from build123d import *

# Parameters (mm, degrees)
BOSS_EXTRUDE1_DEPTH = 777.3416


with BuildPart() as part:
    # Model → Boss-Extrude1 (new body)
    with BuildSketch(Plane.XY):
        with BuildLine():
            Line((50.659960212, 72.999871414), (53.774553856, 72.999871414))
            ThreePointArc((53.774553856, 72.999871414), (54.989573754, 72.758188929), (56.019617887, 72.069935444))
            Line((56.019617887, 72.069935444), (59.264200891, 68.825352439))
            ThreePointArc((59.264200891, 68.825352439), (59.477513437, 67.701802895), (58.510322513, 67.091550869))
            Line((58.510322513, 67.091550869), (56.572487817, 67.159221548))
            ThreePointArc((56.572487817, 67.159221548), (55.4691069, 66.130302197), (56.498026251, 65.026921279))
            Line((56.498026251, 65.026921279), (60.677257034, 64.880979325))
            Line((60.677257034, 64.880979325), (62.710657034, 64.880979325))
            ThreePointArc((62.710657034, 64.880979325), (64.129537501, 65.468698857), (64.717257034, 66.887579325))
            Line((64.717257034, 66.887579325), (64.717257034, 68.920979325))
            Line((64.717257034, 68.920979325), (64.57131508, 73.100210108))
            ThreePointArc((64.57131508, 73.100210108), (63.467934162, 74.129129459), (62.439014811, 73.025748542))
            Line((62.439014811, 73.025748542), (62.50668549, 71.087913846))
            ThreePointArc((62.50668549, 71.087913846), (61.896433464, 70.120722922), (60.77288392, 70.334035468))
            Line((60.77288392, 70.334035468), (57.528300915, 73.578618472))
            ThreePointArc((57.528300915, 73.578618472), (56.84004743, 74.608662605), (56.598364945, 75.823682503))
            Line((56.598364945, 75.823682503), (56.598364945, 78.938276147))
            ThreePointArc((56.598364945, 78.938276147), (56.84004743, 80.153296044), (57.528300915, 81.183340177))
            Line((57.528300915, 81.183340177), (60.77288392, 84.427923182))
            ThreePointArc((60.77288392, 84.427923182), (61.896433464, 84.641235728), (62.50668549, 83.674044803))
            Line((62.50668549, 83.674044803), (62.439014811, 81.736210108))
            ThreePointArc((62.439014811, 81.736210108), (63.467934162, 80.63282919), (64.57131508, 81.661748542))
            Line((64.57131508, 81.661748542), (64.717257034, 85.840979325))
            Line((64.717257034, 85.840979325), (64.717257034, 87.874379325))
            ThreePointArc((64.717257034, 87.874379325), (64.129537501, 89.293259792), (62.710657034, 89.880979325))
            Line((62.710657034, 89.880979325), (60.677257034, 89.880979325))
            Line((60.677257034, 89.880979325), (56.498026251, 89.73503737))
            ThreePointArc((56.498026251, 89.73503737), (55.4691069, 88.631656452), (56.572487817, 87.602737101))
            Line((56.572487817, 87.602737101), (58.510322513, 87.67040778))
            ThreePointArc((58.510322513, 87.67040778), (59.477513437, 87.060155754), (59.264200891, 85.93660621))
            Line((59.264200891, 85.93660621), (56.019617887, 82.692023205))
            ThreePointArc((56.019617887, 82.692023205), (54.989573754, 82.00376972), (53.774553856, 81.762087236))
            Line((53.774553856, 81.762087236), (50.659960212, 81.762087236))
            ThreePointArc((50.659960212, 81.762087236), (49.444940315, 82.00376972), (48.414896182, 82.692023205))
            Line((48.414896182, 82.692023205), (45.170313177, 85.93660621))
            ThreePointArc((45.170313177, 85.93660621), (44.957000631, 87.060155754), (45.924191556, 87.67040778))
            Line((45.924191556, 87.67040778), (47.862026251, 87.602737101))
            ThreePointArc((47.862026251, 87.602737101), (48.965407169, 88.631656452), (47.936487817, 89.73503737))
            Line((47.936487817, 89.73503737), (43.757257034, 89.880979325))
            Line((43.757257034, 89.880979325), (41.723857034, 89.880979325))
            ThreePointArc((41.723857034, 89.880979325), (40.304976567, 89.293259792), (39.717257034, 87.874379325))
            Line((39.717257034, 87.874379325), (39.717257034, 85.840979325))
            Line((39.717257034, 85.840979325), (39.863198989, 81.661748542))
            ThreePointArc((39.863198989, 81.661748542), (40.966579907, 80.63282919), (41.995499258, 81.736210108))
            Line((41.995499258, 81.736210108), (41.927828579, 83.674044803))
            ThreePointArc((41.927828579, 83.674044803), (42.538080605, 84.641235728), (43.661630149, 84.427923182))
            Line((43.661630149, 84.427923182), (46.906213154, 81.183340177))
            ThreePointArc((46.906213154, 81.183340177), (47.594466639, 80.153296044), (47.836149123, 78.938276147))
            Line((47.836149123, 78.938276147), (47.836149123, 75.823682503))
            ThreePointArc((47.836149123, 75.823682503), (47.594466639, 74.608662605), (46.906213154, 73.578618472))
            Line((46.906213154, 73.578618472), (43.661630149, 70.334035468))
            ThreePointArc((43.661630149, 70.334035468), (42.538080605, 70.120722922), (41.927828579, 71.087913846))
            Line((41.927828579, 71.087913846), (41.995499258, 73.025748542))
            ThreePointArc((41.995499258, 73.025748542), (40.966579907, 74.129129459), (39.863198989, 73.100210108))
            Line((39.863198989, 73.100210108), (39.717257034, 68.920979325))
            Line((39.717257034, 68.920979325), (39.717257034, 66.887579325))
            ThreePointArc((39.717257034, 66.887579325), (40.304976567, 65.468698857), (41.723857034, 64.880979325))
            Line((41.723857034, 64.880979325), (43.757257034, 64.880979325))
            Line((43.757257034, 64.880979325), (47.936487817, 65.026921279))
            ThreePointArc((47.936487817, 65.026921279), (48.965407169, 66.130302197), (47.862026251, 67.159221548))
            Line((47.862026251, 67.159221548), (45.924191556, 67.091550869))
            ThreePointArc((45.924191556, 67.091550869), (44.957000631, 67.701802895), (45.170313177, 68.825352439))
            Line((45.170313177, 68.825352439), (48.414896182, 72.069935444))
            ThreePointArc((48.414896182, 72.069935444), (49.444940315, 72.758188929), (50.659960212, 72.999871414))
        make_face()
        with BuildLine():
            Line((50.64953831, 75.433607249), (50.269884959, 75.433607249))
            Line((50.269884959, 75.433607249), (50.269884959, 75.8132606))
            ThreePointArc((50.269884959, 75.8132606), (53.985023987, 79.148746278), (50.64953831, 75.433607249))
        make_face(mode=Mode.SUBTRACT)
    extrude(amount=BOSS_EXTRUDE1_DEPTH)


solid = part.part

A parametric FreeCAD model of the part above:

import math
import FreeCAD as App
import Part
import Sketcher

V = App.Vector
Q = App.Units.Quantity

doc = App.newDocument("Part")
body = doc.addObject("PartDesign::Body", "Body")

# Sketch on XY plane
sketch1 = doc.addObject("Sketcher::SketchObject", "Sketch")
body.addObject(sketch1)
sketch1.AttachmentSupport = (doc.XY_Plane, [""])
sketch1.MapMode = "FlatFace"
sketch1.addGeometry([
    Part.LineSegment(V(50.65996, 72.999871, 0), V(53.774554, 72.999871, 0)),  # 0
    Part.ArcOfCircle(Part.Circle(V(53.774554, 69.824871, 0), V(0, 0, 1), 3.175), math.radians(45), math.radians(90)),  # 1
    Part.LineSegment(V(56.019618, 72.069935, 0), V(59.264201, 68.825352, 0)),  # 2
    Part.ArcOfCircle(Part.Circle(V(58.54578, 68.106932, 0), V(0, 0, 1), 1.016), math.radians(-92), math.radians(45)),  # 3
    Part.LineSegment(V(58.510323, 67.091551, 0), V(56.572488, 67.159222, 0)),  # 4
    Part.ArcOfCircle(Part.Circle(V(56.535257, 66.093071, 0), V(0, 0, 1), 1.0668), math.radians(88), math.radians(268)),  # 5
    Part.LineSegment(V(56.498026, 65.026921, 0), V(60.677257, 64.880979, 0)),  # 6
    Part.LineSegment(V(60.677257, 64.880979, 0), V(62.710657, 64.880979, 0)),  # 7
    Part.ArcOfCircle(Part.Circle(V(62.710657, 66.887579, 0), V(0, 0, 1), 2.0066), math.radians(-90), math.radians(0)),  # 8
    Part.LineSegment(V(64.717257, 66.887579, 0), V(64.717257, 68.920979, 0)),  # 9
    Part.LineSegment(V(64.717257, 68.920979, 0), V(64.571315, 73.10021, 0)),  # 10
    Part.ArcOfCircle(Part.Circle(V(63.505165, 73.062979, 0), V(0, 0, 1), 1.0668), math.radians(2), math.radians(182)),  # 11
    Part.LineSegment(V(62.439015, 73.025749, 0), V(62.506685, 71.087914, 0)),  # 12
    Part.ArcOfCircle(Part.Circle(V(61.491304, 71.052456, 0), V(0, 0, 1), 1.016), math.radians(-135), math.radians(2)),  # 13
    Part.LineSegment(V(60.772884, 70.334035, 0), V(57.528301, 73.578618, 0)),  # 14
    Part.ArcOfCircle(Part.Circle(V(59.773365, 75.823683, 0), V(0, 0, 1), 3.175), math.radians(-180), math.radians(-135)),  # 15
    Part.LineSegment(V(56.598365, 75.823683, 0), V(56.598365, 78.938276, 0)),  # 16
    Part.ArcOfCircle(Part.Circle(V(59.773365, 78.938276, 0), V(0, 0, 1), 3.175), math.radians(135), math.radians(180)),  # 17
    Part.LineSegment(V(57.528301, 81.18334, 0), V(60.772884, 84.427923, 0)),  # 18
    Part.ArcOfCircle(Part.Circle(V(61.491304, 83.709503, 0), V(0, 0, 1), 1.016), math.radians(-2), math.radians(135)),  # 19
    Part.LineSegment(V(62.506685, 83.674045, 0), V(62.439015, 81.73621, 0)),  # 20
    Part.ArcOfCircle(Part.Circle(V(63.505165, 81.698979, 0), V(0, 0, 1), 1.0668), math.radians(178), math.radians(358)),  # 21
    Part.LineSegment(V(64.571315, 81.661749, 0), V(64.717257, 85.840979, 0)),  # 22
    Part.LineSegment(V(64.717257, 85.840979, 0), V(64.717257, 87.874379, 0)),  # 23
    Part.ArcOfCircle(Part.Circle(V(62.710657, 87.874379, 0), V(0, 0, 1), 2.0066), math.radians(0), math.radians(90)),  # 24
    Part.LineSegment(V(62.710657, 89.880979, 0), V(60.677257, 89.880979, 0)),  # 25
    Part.LineSegment(V(60.677257, 89.880979, 0), V(56.498026, 89.735037, 0)),  # 26
    Part.ArcOfCircle(Part.Circle(V(56.535257, 88.668887, 0), V(0, 0, 1), 1.0668), math.radians(92), math.radians(272)),  # 27
    Part.LineSegment(V(56.572488, 87.602737, 0), V(58.510323, 87.670408, 0)),  # 28
    Part.ArcOfCircle(Part.Circle(V(58.54578, 86.655027, 0), V(0, 0, 1), 1.016), math.radians(-45), math.radians(92)),  # 29
    Part.LineSegment(V(59.264201, 85.936606, 0), V(56.019618, 82.692023, 0)),  # 30
    Part.ArcOfCircle(Part.Circle(V(53.774554, 84.937087, 0), V(0, 0, 1), 3.175), math.radians(-90), math.radians(-45)),  # 31
    Part.LineSegment(V(53.774554, 81.762087, 0), V(50.65996, 81.762087, 0)),  # 32
    Part.ArcOfCircle(Part.Circle(V(50.65996, 84.937087, 0), V(0, 0, 1), 3.175), math.radians(-135), math.radians(-90)),  # 33
    Part.LineSegment(V(48.414896, 82.692023, 0), V(45.170313, 85.936606, 0)),  # 34
    Part.ArcOfCircle(Part.Circle(V(45.888734, 86.655027, 0), V(0, 0, 1), 1.016), math.radians(88), math.radians(225)),  # 35
    Part.LineSegment(V(45.924192, 87.670408, 0), V(47.862026, 87.602737, 0)),  # 36
    Part.ArcOfCircle(Part.Circle(V(47.899257, 88.668887, 0), V(0, 0, 1), 1.0668), math.radians(-92), math.radians(88)),  # 37
    Part.LineSegment(V(47.936488, 89.735037, 0), V(43.757257, 89.880979, 0)),  # 38
    Part.LineSegment(V(43.757257, 89.880979, 0), V(41.723857, 89.880979, 0)),  # 39
    Part.ArcOfCircle(Part.Circle(V(41.723857, 87.874379, 0), V(0, 0, 1), 2.0066), math.radians(90), math.radians(180)),  # 40
    Part.LineSegment(V(39.717257, 87.874379, 0), V(39.717257, 85.840979, 0)),  # 41
    Part.LineSegment(V(39.717257, 85.840979, 0), V(39.863199, 81.661749, 0)),  # 42
    Part.ArcOfCircle(Part.Circle(V(40.929349, 81.698979, 0), V(0, 0, 1), 1.0668), math.radians(-178), math.radians(2)),  # 43
    Part.LineSegment(V(41.995499, 81.73621, 0), V(41.927829, 83.674045, 0)),  # 44
    Part.ArcOfCircle(Part.Circle(V(42.94321, 83.709503, 0), V(0, 0, 1), 1.016), math.radians(45), math.radians(182)),  # 45
    Part.LineSegment(V(43.66163, 84.427923, 0), V(46.906213, 81.18334, 0)),  # 46
    Part.ArcOfCircle(Part.Circle(V(44.661149, 78.938276, 0), V(0, 0, 1), 3.175), math.radians(0), math.radians(45)),  # 47
    Part.LineSegment(V(47.836149, 78.938276, 0), V(47.836149, 75.823683, 0)),  # 48
    Part.ArcOfCircle(Part.Circle(V(44.661149, 75.823683, 0), V(0, 0, 1), 3.175), math.radians(-45), math.radians(0)),  # 49
    Part.LineSegment(V(46.906213, 73.578618, 0), V(43.66163, 70.334035, 0)),  # 50
    Part.ArcOfCircle(Part.Circle(V(42.94321, 71.052456, 0), V(0, 0, 1), 1.016), math.radians(178), math.radians(315)),  # 51
    Part.LineSegment(V(41.927829, 71.087914, 0), V(41.995499, 73.025749, 0)),  # 52
    Part.ArcOfCircle(Part.Circle(V(40.929349, 73.062979, 0), V(0, 0, 1), 1.0668), math.radians(-2), math.radians(178)),  # 53
    Part.LineSegment(V(39.863199, 73.10021, 0), V(39.717257, 68.920979, 0)),  # 54
    Part.LineSegment(V(39.717257, 68.920979, 0), V(39.717257, 66.887579, 0)),  # 55
    Part.ArcOfCircle(Part.Circle(V(41.723857, 66.887579, 0), V(0, 0, 1), 2.0066), math.radians(180), math.radians(270)),  # 56
    Part.LineSegment(V(41.723857, 64.880979, 0), V(43.757257, 64.880979, 0)),  # 57
    Part.LineSegment(V(43.757257, 64.880979, 0), V(47.936488, 65.026921, 0)),  # 58
    Part.ArcOfCircle(Part.Circle(V(47.899257, 66.093071, 0), V(0, 0, 1), 1.0668), math.radians(-88), math.radians(92)),  # 59
    Part.LineSegment(V(47.862026, 67.159222, 0), V(45.924192, 67.091551, 0)),  # 60
    Part.ArcOfCircle(Part.Circle(V(45.888734, 68.106932, 0), V(0, 0, 1), 1.016), math.radians(135), math.radians(272)),  # 61
    Part.LineSegment(V(45.170313, 68.825352, 0), V(48.414896, 72.069935, 0)),  # 62
    Part.ArcOfCircle(Part.Circle(V(50.65996, 69.824871, 0), V(0, 0, 1), 3.175), math.radians(90), math.radians(135)),  # 63
    Part.ArcOfCircle(Part.Circle(V(52.217257, 77.380979, 0), V(0, 0, 1), 2.5), math.radians(-128.835568), math.radians(218.835568)),  # 64
    Part.LineSegment(V(50.649538, 75.433607, 0), V(50.269885, 75.433607, 0)),  # 65
    Part.LineSegment(V(50.269885, 75.433607, 0), V(50.269885, 75.813261, 0)),  # 66
], False)
sketch1.addConstraint([
    Sketcher.Constraint("Tangent", 0, 2, 1, 2),
    Sketcher.Constraint("Tangent", 1, 1, 2, 1),
    Sketcher.Constraint("Tangent", 2, 2, 3, 2),
    Sketcher.Constraint("Tangent", 3, 1, 4, 1),
    Sketcher.Constraint("Tangent", 4, 2, 5, 1),
    Sketcher.Constraint("Tangent", 5, 2, 6, 1),
    Sketcher.Constraint("Coincident", 6, 2, 7, 1),
    Sketcher.Constraint("Tangent", 7, 2, 8, 1),
    Sketcher.Constraint("Tangent", 8, 2, 9, 1),
    Sketcher.Constraint("Coincident", 9, 2, 10, 1),
    Sketcher.Constraint("Tangent", 10, 2, 11, 1),
    Sketcher.Constraint("Tangent", 11, 2, 12, 1),
    Sketcher.Constraint("Tangent", 12, 2, 13, 2),
    Sketcher.Constraint("Tangent", 13, 1, 14, 1),
    Sketcher.Constraint("Tangent", 14, 2, 15, 2),
    Sketcher.Constraint("Tangent", 15, 1, 16, 1),
    Sketcher.Constraint("Tangent", 16, 2, 17, 2),
    Sketcher.Constraint("Tangent", 17, 1, 18, 1),
    Sketcher.Constraint("Tangent", 18, 2, 19, 2),
    Sketcher.Constraint("Tangent", 19, 1, 20, 1),
    Sketcher.Constraint("Tangent", 20, 2, 21, 1),
    Sketcher.Constraint("Tangent", 21, 2, 22, 1),
    Sketcher.Constraint("Coincident", 22, 2, 23, 1),
    Sketcher.Constraint("Tangent", 23, 2, 24, 1),
    Sketcher.Constraint("Tangent", 24, 2, 25, 1),
    Sketcher.Constraint("Coincident", 25, 2, 26, 1),
    Sketcher.Constraint("Tangent", 26, 2, 27, 1),
    Sketcher.Constraint("Tangent", 27, 2, 28, 1),
    Sketcher.Constraint("Tangent", 28, 2, 29, 2),
    Sketcher.Constraint("Tangent", 29, 1, 30, 1),
    Sketcher.Constraint("Tangent", 30, 2, 31, 2),
    Sketcher.Constraint("Tangent", 31, 1, 32, 1),
    Sketcher.Constraint("Tangent", 32, 2, 33, 2),
    Sketcher.Constraint("Tangent", 33, 1, 34, 1),
    Sketcher.Constraint("Tangent", 34, 2, 35, 2),
    Sketcher.Constraint("Tangent", 35, 1, 36, 1),
    Sketcher.Constraint("Tangent", 36, 2, 37, 1),
    Sketcher.Constraint("Tangent", 37, 2, 38, 1),
    Sketcher.Constraint("Coincident", 38, 2, 39, 1),
    Sketcher.Constraint("Tangent", 39, 2, 40, 1),
    Sketcher.Constraint("Tangent", 40, 2, 41, 1),
    Sketcher.Constraint("Coincident", 41, 2, 42, 1),
    Sketcher.Constraint("Tangent", 42, 2, 43, 1),
    Sketcher.Constraint("Tangent", 43, 2, 44, 1),
    Sketcher.Constraint("Tangent", 44, 2, 45, 2),
    Sketcher.Constraint("Tangent", 45, 1, 46, 1),
    Sketcher.Constraint("Tangent", 46, 2, 47, 2),
    Sketcher.Constraint("Tangent", 47, 1, 48, 1),
    Sketcher.Constraint("Tangent", 48, 2, 49, 2),
    Sketcher.Constraint("Tangent", 49, 1, 50, 1),
    Sketcher.Constraint("Tangent", 50, 2, 51, 2),
    Sketcher.Constraint("Tangent", 51, 1, 52, 1),
    Sketcher.Constraint("Tangent", 52, 2, 53, 1),
    Sketcher.Constraint("Tangent", 53, 2, 54, 1),
    Sketcher.Constraint("Coincident", 54, 2, 55, 1),
    Sketcher.Constraint("Tangent", 55, 2, 56, 1),
    Sketcher.Constraint("Tangent", 56, 2, 57, 1),
    Sketcher.Constraint("Coincident", 57, 2, 58, 1),
    Sketcher.Constraint("Tangent", 58, 2, 59, 1),
    Sketcher.Constraint("Tangent", 59, 2, 60, 1),
    Sketcher.Constraint("Tangent", 60, 2, 61, 2),
    Sketcher.Constraint("Tangent", 61, 1, 62, 1),
    Sketcher.Constraint("Tangent", 62, 2, 63, 2),
    Sketcher.Constraint("Tangent", 63, 1, 0, 1),
    Sketcher.Constraint("Coincident", 64, 1, 65, 1),
    Sketcher.Constraint("Coincident", 65, 2, 66, 1),
    Sketcher.Constraint("Coincident", 66, 2, 64, 2),
    Sketcher.Constraint("Horizontal", 0),
    Sketcher.Constraint("Horizontal", 7),
    Sketcher.Constraint("Vertical", 9),
    Sketcher.Constraint("Vertical", 16),
    Sketcher.Constraint("Vertical", 23),
    Sketcher.Constraint("Horizontal", 25),
    Sketcher.Constraint("Horizontal", 32),
    Sketcher.Constraint("Horizontal", 39),
    Sketcher.Constraint("Vertical", 41),
    Sketcher.Constraint("Vertical", 48),
    Sketcher.Constraint("Vertical", 55),
    Sketcher.Constraint("Horizontal", 57),
    Sketcher.Constraint("Horizontal", 65),
    Sketcher.Constraint("Vertical", 66),
    Sketcher.Constraint("Equal", 5, 11),
    Sketcher.Constraint("Equal", 3, 13),
    Sketcher.Constraint("Equal", 1, 15),
    Sketcher.Constraint("Equal", 15, 17),
    Sketcher.Constraint("Equal", 13, 19),
    Sketcher.Constraint("Equal", 11, 21),
    Sketcher.Constraint("Equal", 8, 24),
    Sketcher.Constraint("Equal", 21, 27),
    Sketcher.Constraint("Equal", 19, 29),
    Sketcher.Constraint("Equal", 17, 31),
    Sketcher.Constraint("Equal", 31, 33),
    Sketcher.Constraint("Equal", 29, 35),
    Sketcher.Constraint("Equal", 27, 37),
    Sketcher.Constraint("Equal", 24, 40),
    Sketcher.Constraint("Equal", 37, 43),
    Sketcher.Constraint("Equal", 35, 45),
    Sketcher.Constraint("Equal", 33, 47),
    Sketcher.Constraint("Equal", 47, 49),
    Sketcher.Constraint("Equal", 45, 51),
    Sketcher.Constraint("Equal", 43, 53),
    Sketcher.Constraint("Equal", 40, 56),
    Sketcher.Constraint("Equal", 53, 59),
    Sketcher.Constraint("Equal", 51, 61),
    Sketcher.Constraint("Equal", 49, 63),
    Sketcher.Constraint("Parallel", 4, 6),
    Sketcher.Constraint("Parallel", 10, 12),
    Sketcher.Constraint("Parallel", 2, 14),
    Sketcher.Constraint("Perpendicular", 14, 18),
    Sketcher.Constraint("Perpendicular", 6, 20),
    Sketcher.Constraint("Parallel", 20, 22),
    Sketcher.Constraint("Perpendicular", 12, 26),
    Sketcher.Constraint("Parallel", 26, 28),
    Sketcher.Constraint("Parallel", 18, 30),
    Sketcher.Constraint("Perpendicular", 30, 34),
    Sketcher.Constraint("Perpendicular", 22, 36),
    Sketcher.Constraint("Parallel", 36, 38),
    Sketcher.Constraint("Perpendicular", 28, 42),
    Sketcher.Constraint("Parallel", 42, 44),
    Sketcher.Constraint("Parallel", 34, 46),
    Sketcher.Constraint("Perpendicular", 46, 50),
    Sketcher.Constraint("Perpendicular", 38, 52),
    Sketcher.Constraint("Parallel", 52, 54),
    Sketcher.Constraint("Perpendicular", 44, 58),
    Sketcher.Constraint("Parallel", 58, 60),
    Sketcher.Constraint("Parallel", 50, 62),
    Sketcher.Constraint("Horizontal", 29, 3, 35, 3),
    Sketcher.Constraint("Horizontal", 27, 3, 37, 3),
    Sketcher.Constraint("Horizontal", 24, 3, 40, 3),
    Sketcher.Constraint("Horizontal", 21, 3, 43, 3),
    Sketcher.Constraint("Horizontal", 19, 3, 45, 3),
    Sketcher.Constraint("Horizontal", 17, 3, 47, 3),
    Sketcher.Constraint("Horizontal", 15, 3, 49, 3),
    Sketcher.Constraint("Horizontal", 13, 3, 51, 3),
    Sketcher.Constraint("Horizontal", 11, 3, 53, 3),
    Sketcher.Constraint("Horizontal", 8, 3, 56, 3),
    Sketcher.Constraint("Horizontal", 5, 3, 59, 3),
    Sketcher.Constraint("Horizontal", 3, 3, 61, 3),
    Sketcher.Constraint("Horizontal", 30, 2, 33, 1),
    Sketcher.Constraint("Horizontal", 22, 2, 41, 2),
    Sketcher.Constraint("Horizontal", 21, 2, 42, 2),
    Sketcher.Constraint("Horizontal", 9, 2, 54, 2),
    Sketcher.Constraint("Vertical", 13, 3, 19, 3),
    Sketcher.Constraint("Vertical", 11, 3, 21, 3),
    Sketcher.Constraint("Vertical", 8, 3, 24, 3),
    Sketcher.Constraint("Vertical", 5, 3, 27, 3),
    Sketcher.Constraint("Vertical", 3, 3, 29, 3),
    Sketcher.Constraint("Vertical", 1, 3, 31, 3),
    Sketcher.Constraint("Vertical", 37, 3, 59, 3),
    Sketcher.Constraint("Vertical", 6, 2, 25, 2),
    Sketcher.Constraint("Equal", 25, 39),
    Sketcher.Constraint("Equal", 57, 9),
    Sketcher.Constraint("Equal", 32, 16),
    Sketcher.Constraint("Equal", 9, 23),
    Sketcher.Constraint("Equal", 65, 66),
    Sketcher.Constraint("Equal", 6, 10),
    Sketcher.Constraint("Equal", 4, 12),
    Sketcher.Constraint("Equal", 2, 14),
    Sketcher.Constraint("Radius", 3, Q("0.04 in")),
    Sketcher.Constraint("Angle", 4, Q("178 deg")),
    Sketcher.Constraint("Radius", 1, Q("0.125 in")),
    Sketcher.Constraint("Radius", 5, Q("0.042 in")),
    Sketcher.Constraint("Radius", 8, Q("0.079 in")),
    Sketcher.Constraint("Radius", 64, Q("2.5 mm")),
    Sketcher.Constraint("DistanceX", 7, 1, 7, 2, Q("2.0334 mm")),
    Sketcher.Constraint("DistanceX", -1, 1, 2, 2, Q("59.264201 mm")),
    Sketcher.Constraint("DistanceX", -1, 1, 14, 2, Q("57.528301 mm")),
    Sketcher.Constraint("DistanceX", -1, 1, 42, 2, Q("39.863199 mm")),
    Sketcher.Constraint("Distance", 6, Q("4.181778 mm")),
    Sketcher.Constraint("DistanceX", 0, 1, 0, 2, Q("3.114594 mm")),
    Sketcher.Constraint("DistanceX", 65, 2, 65, 1, Q("0.379653 mm")),
    Sketcher.Constraint("DistanceY", -1, 1, 1, 3, Q("69.824871 mm")),
    Sketcher.Constraint("DistanceY", -1, 1, 64, 3, Q("77.380979 mm")),
    Sketcher.Constraint("DistanceX", -1, 1, 64, 1, Q("50.649538 mm")),
])
pad1 = doc.addObject("PartDesign::Pad", "Pad")
body.addObject(pad1)
pad1.Profile = sketch1
pad1.Length = Q("30.604 in")

doc.recompute()
